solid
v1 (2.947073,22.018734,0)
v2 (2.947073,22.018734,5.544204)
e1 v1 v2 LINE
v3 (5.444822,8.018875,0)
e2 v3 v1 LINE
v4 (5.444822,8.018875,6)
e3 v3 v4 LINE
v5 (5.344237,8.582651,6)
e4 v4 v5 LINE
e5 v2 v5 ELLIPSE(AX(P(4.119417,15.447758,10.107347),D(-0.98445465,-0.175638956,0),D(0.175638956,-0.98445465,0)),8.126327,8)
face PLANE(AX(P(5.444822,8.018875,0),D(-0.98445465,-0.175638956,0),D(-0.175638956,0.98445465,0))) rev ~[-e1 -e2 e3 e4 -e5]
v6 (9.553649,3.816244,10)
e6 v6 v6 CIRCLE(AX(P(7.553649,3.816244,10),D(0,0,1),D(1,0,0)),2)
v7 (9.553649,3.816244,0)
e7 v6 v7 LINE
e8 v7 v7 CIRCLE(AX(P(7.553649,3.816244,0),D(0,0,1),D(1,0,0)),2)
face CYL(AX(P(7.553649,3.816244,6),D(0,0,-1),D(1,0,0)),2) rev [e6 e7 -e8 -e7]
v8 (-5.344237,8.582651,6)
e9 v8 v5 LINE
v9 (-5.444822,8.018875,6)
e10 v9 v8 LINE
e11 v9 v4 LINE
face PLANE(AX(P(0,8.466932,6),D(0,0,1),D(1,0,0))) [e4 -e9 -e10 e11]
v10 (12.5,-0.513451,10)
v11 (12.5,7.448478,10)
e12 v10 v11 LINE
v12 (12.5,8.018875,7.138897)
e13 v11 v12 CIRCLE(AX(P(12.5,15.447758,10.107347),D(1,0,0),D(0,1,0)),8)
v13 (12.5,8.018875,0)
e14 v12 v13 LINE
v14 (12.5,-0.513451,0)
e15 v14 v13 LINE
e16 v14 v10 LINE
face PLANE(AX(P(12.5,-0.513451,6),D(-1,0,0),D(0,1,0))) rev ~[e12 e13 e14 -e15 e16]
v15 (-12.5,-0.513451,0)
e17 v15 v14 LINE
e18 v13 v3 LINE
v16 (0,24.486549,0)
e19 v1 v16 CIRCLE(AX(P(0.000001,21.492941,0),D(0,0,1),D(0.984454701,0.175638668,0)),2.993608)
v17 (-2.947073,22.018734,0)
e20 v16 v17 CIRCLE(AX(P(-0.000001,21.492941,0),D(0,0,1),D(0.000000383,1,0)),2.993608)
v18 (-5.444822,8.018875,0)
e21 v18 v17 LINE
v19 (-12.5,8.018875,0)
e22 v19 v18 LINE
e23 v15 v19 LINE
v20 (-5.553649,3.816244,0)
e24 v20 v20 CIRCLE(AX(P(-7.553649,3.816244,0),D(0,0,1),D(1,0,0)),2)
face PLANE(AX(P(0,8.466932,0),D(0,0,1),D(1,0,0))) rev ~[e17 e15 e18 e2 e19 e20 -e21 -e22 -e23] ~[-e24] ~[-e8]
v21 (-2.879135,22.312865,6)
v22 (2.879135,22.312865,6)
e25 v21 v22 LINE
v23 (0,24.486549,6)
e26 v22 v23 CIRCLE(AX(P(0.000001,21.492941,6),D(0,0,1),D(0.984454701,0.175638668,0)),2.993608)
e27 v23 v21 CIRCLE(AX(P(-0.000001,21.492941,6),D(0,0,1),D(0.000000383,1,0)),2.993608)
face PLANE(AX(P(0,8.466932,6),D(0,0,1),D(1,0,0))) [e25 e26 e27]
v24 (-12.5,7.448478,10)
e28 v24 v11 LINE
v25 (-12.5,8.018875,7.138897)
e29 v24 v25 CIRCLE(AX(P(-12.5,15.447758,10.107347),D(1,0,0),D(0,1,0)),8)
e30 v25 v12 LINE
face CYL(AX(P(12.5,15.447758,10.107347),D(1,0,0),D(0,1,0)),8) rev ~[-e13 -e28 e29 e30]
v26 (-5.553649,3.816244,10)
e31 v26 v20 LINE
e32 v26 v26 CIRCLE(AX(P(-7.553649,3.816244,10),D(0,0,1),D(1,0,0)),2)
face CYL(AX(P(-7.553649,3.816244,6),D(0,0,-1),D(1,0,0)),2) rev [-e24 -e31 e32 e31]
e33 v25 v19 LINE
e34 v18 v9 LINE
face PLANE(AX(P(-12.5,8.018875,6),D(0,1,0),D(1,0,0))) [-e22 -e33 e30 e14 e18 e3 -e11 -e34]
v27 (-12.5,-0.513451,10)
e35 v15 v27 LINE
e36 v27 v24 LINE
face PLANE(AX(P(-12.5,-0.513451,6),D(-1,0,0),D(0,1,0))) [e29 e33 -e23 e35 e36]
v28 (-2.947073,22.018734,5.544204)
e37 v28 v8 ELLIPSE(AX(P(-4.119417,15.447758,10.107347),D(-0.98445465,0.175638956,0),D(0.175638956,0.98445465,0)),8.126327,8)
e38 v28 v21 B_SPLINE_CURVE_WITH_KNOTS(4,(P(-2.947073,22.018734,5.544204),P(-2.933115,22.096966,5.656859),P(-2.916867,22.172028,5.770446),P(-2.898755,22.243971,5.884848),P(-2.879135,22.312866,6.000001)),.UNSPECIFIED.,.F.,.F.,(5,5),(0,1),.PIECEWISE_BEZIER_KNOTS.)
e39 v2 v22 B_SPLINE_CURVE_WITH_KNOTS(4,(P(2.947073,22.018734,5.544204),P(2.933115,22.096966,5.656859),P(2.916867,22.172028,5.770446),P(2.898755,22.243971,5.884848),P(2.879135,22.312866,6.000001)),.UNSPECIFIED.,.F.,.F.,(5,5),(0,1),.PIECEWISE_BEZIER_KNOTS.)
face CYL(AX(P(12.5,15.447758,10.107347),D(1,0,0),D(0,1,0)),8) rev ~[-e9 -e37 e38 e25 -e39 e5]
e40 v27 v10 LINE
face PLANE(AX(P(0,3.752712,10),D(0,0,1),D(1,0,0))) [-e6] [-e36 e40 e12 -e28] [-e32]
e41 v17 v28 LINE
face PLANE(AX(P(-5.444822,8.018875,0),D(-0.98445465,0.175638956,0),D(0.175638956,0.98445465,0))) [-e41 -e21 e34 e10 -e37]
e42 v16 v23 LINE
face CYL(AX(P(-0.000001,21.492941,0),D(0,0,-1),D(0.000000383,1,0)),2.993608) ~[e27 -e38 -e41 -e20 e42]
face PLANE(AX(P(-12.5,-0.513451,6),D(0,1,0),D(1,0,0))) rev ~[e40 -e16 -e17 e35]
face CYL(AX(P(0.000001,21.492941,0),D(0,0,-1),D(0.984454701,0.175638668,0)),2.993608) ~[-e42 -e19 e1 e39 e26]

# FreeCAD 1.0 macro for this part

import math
import FreeCAD as App
import Part
import Sketcher

V = App.Vector
Q = App.Units.Quantity


def add_polygon(sketch, points):
    """Adds a closed chain of lines whose ends are joined by coincident constraints."""
    first, n = sketch.GeometryCount, len(points)
    for a, b in zip(points, points[1:] + points[:1]):
        sketch.addGeometry(Part.LineSegment(App.Vector(*a, 0), App.Vector(*b, 0)), False)
    for i in range(n):
        sketch.addConstraint(Sketcher.Constraint("Coincident", first + i, 2, first + (i + 1) % n, 1))

doc = App.newDocument("Part")
body = doc.addObject("PartDesign::Body", "Body")

# Sketch on XY plane
sketch1 = body.newObject("Sketcher::SketchObject", "Sketch")
sketch1.AttachmentSupport = (doc.getObject("XY_Plane"), [""])
sketch1.MapMode = "FlatFace"
sketch1.addGeometry(Part.LineSegment(V(12.5, -0.5, 0), V(12.5, 8, 0)), False)
sketch1.addGeometry(Part.LineSegment(V(12.5, 8, 0), V(5.4, 8, 0)), False)
sketch1.addGeometry(Part.LineSegment(V(5.4, 8, 0), V(2.9, 22, 0)), False)
sketch1.addGeometry(Part.ArcOfCircle(Part.Circle(V(0, 21.5, 0), V(0, 0, 1), 3), math.radians(10), math.radians(90)), False)
sketch1.addGeometry(Part.ArcOfCircle(Part.Circle(V(0, 21.5, 0), V(0, 0, 1), 3), math.radians(90), math.radians(170)), False)
sketch1.addGeometry(Part.LineSegment(V(-2.9, 22, 0), V(-5.4, 8, 0)), False)
sketch1.addGeometry(Part.LineSegment(V(-5.4, 8, 0), V(-12.5, 8, 0)), False)
sketch1.addGeometry(Part.LineSegment(V(-12.5, 8, 0), V(-12.5, -0.5, 0)), False)
sketch1.addGeometry(Part.LineSegment(V(-12.5, -0.5, 0), V(12.5, -0.5, 0)), False)
sketch1.addGeometry(Part.Circle(V(-7.6, 3.8, 0), V(0, 0, 1), 2), False)
sketch1.addGeometry(Part.Circle(V(7.6, 3.8, 0), V(0, 0, 1), 2), False)
sketch1.addConstraint(Sketcher.Constraint("Coincident", 0, 2, 1, 1))
sketch1.addConstraint(Sketcher.Constraint("Coincident", 1, 2, 2, 1))
sketch1.addConstraint(Sketcher.Constraint("Tangent", 2, 2, 3, 1))
sketch1.addConstraint(Sketcher.Constraint("Tangent", 3, 2, 4, 1))
sketch1.addConstraint(Sketcher.Constraint("Tangent", 4, 2, 5, 1))
sketch1.addConstraint(Sketcher.Constraint("Coincident", 5, 2, 6, 1))
sketch1.addConstraint(Sketcher.Constraint("Coincident", 6, 2, 7, 1))
sketch1.addConstraint(Sketcher.Constraint("Coincident", 7, 2, 8, 1))
sketch1.addConstraint(Sketcher.Constraint("Coincident", 8, 2, 0, 1))
sketch1.addConstraint(Sketcher.Constraint("Vertical", 0))
sketch1.addConstraint(Sketcher.Constraint("Horizontal", 1))
sketch1.addConstraint(Sketcher.Constraint("Horizontal", 6))
sketch1.addConstraint(Sketcher.Constraint("Vertical", 7))
sketch1.addConstraint(Sketcher.Constraint("Horizontal", 8))
sketch1.addConstraint(Sketcher.Constraint("Equal", 3, 4))
sketch1.addConstraint(Sketcher.Constraint("Equal", 9, 10))
sketch1.addConstraint(Sketcher.Constraint("Symmetric", 9, 3, 10, 3, -2))
sketch1.addConstraint(Sketcher.Constraint("Symmetric", 2, 2, 4, 2, -2))
sketch1.addConstraint(Sketcher.Constraint("Symmetric", 0, 2, 6, 2, -2))
sketch1.addConstraint(Sketcher.Constraint("PointOnObject", 3, 2, -2))
sketch1.addConstraint(Sketcher.Constraint("Diameter", 9, Q("4 mm")))
sketch1.addConstraint(Sketcher.Constraint("DistanceX", 8, 1, 8, 2, Q("25 mm")))
sketch1.addConstraint(Sketcher.Constraint("Radius", 3, Q("2.993608 mm")))
sketch1.addConstraint(Sketcher.Constraint("Distance", 2, Q("14.220928 mm")))
sketch1.addConstraint(Sketcher.Constraint("DistanceX", 1, 2, 1, 1, Q("7.055178 mm")))
sketch1.addConstraint(Sketcher.Constraint("DistanceY", 0, 1, 0, 2, Q("8.532326 mm")))
sketch1.addConstraint(Sketcher.Constraint("DistanceY", -1, 1, 3, 3, Q("21.492941 mm")))
sketch1.addConstraint(Sketcher.Constraint("DistanceX", 9, 3, -1, 1, Q("7.553649 mm")))
sketch1.addConstraint(Sketcher.Constraint("DistanceY", 10, 3, 0, 2, Q("4.202631 mm")))
pad1 = body.newObject("PartDesign::Pad", "Pad")
pad1.Profile = sketch1
pad1.Length = 6

# Sketch on XY plane
sketch2 = body.newObject("Sketcher::SketchObject", "Sketch001")
sketch2.AttachmentSupport = (doc.getObject("XY_Plane"), [""])
sketch2.MapMode = "FlatFace"
sketch2.AttachmentOffset = App.Placement(V(0, 0, 6), App.Rotation())
add_polygon(sketch2, [(-12.5, 8), (-12.5, -0.5), (12.5, -0.5), (12.5, 8)])  # lines 0-3
sketch2.addGeometry(Part.Circle(V(-7.6, 3.8, 0), V(0, 0, 1), 2), False)  # 4
sketch2.addGeometry(Part.Circle(V(7.6, 3.8, 0), V(0, 0, 1), 2), False)  # 5
sketch2.addConstraint(Sketcher.Constraint("Vertical", 0))
sketch2.addConstraint(Sketcher.Constraint("Horizontal", 1))
sketch2.addConstraint(Sketcher.Constraint("Vertical", 2))
sketch2.addConstraint(Sketcher.Constraint("Horizontal", 3))
sketch2.addConstraint(Sketcher.Constraint("Equal", 4, 5))
sketch2.addConstraint(Sketcher.Constraint("Symmetric", 4, 3, 5, 3, -2))
sketch2.addConstraint(Sketcher.Constraint("Diameter", 4, Q("4 mm")))
sketch2.addConstraint(Sketcher.Constraint("DistanceX", 1, 1, 1, 2, Q("25 mm")))
sketch2.addConstraint(Sketcher.Constraint("DistanceX", 0, 2, -1, 1, Q("12.5 mm")))
sketch2.addConstraint(Sketcher.Constraint("DistanceY", 0, 2, 0, 1, Q("8.532326 mm")))
sketch2.addConstraint(Sketcher.Constraint("DistanceX", 4, 3, -1, 1, Q("7.553649 mm")))
sketch2.addConstraint(Sketcher.Constraint("DistanceY", 0, 2, -1, 1, Q("0.513451 mm")))
sketch2.addConstraint(Sketcher.Constraint("DistanceY", 5, 3, 2, 2, Q("4.202631 mm")))
pad2 = body.newObject("PartDesign::Pad", "Pad001")
pad2.Profile = sketch2
pad2.Length = 4

# Sketch on YZ plane
sketch3 = body.newObject("Sketcher::SketchObject", "Sketch002")
sketch3.AttachmentSupport = (doc.getObject("YZ_Plane"), [""])
sketch3.MapMode = "FlatFace"
sketch3.AttachmentOffset = App.Placement(V(0, 0, 12.5), App.Rotation())
sketch3.addGeometry(Part.Circle(V(15, 10, 0), V(0, 0, 1), 8), False)
sketch3.addConstraint(Sketcher.Constraint("Diameter", 0, Q("16 mm")))
sketch3.addConstraint(Sketcher.Constraint("DistanceX", -1, 1, 0, 3, Q("15.447758 mm")))
sketch3.addConstraint(Sketcher.Constraint("DistanceY", -1, 1, 0, 3, Q("10.107347 mm")))
pocket1 = body.newObject("PartDesign::Pocket", "Pocket")
pocket1.Profile = sketch3
pocket1.Type = "ThroughAll"

doc.recompute()
